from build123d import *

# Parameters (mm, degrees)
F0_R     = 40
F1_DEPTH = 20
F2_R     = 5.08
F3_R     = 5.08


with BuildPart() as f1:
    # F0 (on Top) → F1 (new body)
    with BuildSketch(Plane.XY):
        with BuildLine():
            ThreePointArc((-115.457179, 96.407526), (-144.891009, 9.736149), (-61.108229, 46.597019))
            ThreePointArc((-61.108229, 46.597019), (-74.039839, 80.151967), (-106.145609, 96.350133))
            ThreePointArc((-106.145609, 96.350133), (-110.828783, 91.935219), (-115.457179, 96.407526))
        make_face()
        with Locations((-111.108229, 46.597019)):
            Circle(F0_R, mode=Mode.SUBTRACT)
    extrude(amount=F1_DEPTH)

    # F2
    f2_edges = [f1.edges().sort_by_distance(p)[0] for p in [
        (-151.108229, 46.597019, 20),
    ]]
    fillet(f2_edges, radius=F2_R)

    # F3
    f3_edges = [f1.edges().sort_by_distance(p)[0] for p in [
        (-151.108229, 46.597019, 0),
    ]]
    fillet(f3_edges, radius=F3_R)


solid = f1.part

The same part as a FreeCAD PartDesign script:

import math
import FreeCAD as App
import Part
import Sketcher

V = App.Vector


def edges_at(feature, points):
    """Names of the edges that pass closest to the given points."""
    edges = feature.Shape.Edges
    near = lambda p: min(range(len(edges)), key=lambda i: edges[i].distToShape(Part.Vertex(*p))[0])
    return sorted({f"Edge{near(p) + 1}" for p in points})

doc = App.newDocument("Part")
params = doc.addObject("Spreadsheet::Sheet", "Params")
for row, (alias, value) in enumerate([
    ("sketch1_diameter", "80 mm"),
    ("sketch1_radius", "50 mm"),
    ("pad1_length", "20 mm"),
    ("fillet_radius", "5.08 mm"),
    ("fillet2_radius", "5.08 mm"),
], start=1):
    params.set(f"A{row}", alias)
    params.set(f"B{row}", "=" + value)
    params.setAlias(f"B{row}", alias)

body = doc.addObject("PartDesign::Body", "Body")

# Sketch on XY plane
sketch1 = body.newObject("Sketcher::SketchObject", "Sketch")
sketch1.AttachmentSupport = (doc.getObject("XY_Plane"), [""])
sketch1.MapMode = "FlatFace"
sketch1.addGeometry([
    Part.ArcOfCircle(Part.Circle(V(-111.1, 46.6, 0), V(0, 0, 1), 50), math.radians(95), math.radians(360)),
    Part.ArcOfCircle(Part.Circle(V(-111.1, 46.6, 0), V(0, 0, 1), 50), math.radians(0), math.radians(84)),
    Part.ArcOfCircle(Part.Circle(V(-110.8, 96.6, 0), V(0, 0, 1), 4.7), math.radians(-178), math.radians(-3)),
    Part.Circle(V(-111.1, 46.6, 0), V(0, 0, 1), 40),
], False)
sketch1.addConstraint([
    Sketcher.Constraint("Tangent", 0, 2, 1, 1),
    Sketcher.Constraint("Coincident", 1, 2, 2, 2),
    Sketcher.Constraint("Coincident", 2, 1, 0, 1),
    Sketcher.Constraint("Coincident", 3, 3, 0, 3),
    Sketcher.Constraint("Horizontal", 3, 3, 0, 2),
    Sketcher.Constraint("Diameter", 3, 80.0),
    Sketcher.Constraint("Radius", 0, 50.0),
    Sketcher.Constraint("Radius", 2, 4.660939),
    Sketcher.Constraint("Radius", 1, 49.999997),
    Sketcher.Constraint("DistanceX", 0, 3, -1, 1, 111.108229),
    Sketcher.Constraint("DistanceY", -1, 1, 0, 3, 46.597019),
    Sketcher.Constraint("DistanceY", -1, 1, 2, 3, 96.596069),
    Sketcher.Constraint("DistanceX", 1, 2, -1, 1, 106.145609),
])
sketch1.setExpression("Constraints[5]", "Params.sketch1_diameter")
sketch1.setExpression("Constraints[6]", "Params.sketch1_radius")
pad1 = body.newObject("PartDesign::Pad", "Pad")
pad1.Profile = sketch1
pad1.setExpression("Length", "Params.pad1_length")
doc.recompute()

fillet = body.newObject("PartDesign::Fillet", "Fillet")
fillet.Base = (pad1, edges_at(pad1, [(-151.108, 46.597, 20)]))
fillet.setExpression("Radius", "Params.fillet_radius")
doc.recompute()

fillet2 = body.newObject("PartDesign::Fillet", "Fillet001")
fillet2.Base = (fillet, edges_at(fillet, [(-151.108, 46.597, 0)]))
fillet2.setExpression("Radius", "Params.fillet2_radius")

doc.recompute()
